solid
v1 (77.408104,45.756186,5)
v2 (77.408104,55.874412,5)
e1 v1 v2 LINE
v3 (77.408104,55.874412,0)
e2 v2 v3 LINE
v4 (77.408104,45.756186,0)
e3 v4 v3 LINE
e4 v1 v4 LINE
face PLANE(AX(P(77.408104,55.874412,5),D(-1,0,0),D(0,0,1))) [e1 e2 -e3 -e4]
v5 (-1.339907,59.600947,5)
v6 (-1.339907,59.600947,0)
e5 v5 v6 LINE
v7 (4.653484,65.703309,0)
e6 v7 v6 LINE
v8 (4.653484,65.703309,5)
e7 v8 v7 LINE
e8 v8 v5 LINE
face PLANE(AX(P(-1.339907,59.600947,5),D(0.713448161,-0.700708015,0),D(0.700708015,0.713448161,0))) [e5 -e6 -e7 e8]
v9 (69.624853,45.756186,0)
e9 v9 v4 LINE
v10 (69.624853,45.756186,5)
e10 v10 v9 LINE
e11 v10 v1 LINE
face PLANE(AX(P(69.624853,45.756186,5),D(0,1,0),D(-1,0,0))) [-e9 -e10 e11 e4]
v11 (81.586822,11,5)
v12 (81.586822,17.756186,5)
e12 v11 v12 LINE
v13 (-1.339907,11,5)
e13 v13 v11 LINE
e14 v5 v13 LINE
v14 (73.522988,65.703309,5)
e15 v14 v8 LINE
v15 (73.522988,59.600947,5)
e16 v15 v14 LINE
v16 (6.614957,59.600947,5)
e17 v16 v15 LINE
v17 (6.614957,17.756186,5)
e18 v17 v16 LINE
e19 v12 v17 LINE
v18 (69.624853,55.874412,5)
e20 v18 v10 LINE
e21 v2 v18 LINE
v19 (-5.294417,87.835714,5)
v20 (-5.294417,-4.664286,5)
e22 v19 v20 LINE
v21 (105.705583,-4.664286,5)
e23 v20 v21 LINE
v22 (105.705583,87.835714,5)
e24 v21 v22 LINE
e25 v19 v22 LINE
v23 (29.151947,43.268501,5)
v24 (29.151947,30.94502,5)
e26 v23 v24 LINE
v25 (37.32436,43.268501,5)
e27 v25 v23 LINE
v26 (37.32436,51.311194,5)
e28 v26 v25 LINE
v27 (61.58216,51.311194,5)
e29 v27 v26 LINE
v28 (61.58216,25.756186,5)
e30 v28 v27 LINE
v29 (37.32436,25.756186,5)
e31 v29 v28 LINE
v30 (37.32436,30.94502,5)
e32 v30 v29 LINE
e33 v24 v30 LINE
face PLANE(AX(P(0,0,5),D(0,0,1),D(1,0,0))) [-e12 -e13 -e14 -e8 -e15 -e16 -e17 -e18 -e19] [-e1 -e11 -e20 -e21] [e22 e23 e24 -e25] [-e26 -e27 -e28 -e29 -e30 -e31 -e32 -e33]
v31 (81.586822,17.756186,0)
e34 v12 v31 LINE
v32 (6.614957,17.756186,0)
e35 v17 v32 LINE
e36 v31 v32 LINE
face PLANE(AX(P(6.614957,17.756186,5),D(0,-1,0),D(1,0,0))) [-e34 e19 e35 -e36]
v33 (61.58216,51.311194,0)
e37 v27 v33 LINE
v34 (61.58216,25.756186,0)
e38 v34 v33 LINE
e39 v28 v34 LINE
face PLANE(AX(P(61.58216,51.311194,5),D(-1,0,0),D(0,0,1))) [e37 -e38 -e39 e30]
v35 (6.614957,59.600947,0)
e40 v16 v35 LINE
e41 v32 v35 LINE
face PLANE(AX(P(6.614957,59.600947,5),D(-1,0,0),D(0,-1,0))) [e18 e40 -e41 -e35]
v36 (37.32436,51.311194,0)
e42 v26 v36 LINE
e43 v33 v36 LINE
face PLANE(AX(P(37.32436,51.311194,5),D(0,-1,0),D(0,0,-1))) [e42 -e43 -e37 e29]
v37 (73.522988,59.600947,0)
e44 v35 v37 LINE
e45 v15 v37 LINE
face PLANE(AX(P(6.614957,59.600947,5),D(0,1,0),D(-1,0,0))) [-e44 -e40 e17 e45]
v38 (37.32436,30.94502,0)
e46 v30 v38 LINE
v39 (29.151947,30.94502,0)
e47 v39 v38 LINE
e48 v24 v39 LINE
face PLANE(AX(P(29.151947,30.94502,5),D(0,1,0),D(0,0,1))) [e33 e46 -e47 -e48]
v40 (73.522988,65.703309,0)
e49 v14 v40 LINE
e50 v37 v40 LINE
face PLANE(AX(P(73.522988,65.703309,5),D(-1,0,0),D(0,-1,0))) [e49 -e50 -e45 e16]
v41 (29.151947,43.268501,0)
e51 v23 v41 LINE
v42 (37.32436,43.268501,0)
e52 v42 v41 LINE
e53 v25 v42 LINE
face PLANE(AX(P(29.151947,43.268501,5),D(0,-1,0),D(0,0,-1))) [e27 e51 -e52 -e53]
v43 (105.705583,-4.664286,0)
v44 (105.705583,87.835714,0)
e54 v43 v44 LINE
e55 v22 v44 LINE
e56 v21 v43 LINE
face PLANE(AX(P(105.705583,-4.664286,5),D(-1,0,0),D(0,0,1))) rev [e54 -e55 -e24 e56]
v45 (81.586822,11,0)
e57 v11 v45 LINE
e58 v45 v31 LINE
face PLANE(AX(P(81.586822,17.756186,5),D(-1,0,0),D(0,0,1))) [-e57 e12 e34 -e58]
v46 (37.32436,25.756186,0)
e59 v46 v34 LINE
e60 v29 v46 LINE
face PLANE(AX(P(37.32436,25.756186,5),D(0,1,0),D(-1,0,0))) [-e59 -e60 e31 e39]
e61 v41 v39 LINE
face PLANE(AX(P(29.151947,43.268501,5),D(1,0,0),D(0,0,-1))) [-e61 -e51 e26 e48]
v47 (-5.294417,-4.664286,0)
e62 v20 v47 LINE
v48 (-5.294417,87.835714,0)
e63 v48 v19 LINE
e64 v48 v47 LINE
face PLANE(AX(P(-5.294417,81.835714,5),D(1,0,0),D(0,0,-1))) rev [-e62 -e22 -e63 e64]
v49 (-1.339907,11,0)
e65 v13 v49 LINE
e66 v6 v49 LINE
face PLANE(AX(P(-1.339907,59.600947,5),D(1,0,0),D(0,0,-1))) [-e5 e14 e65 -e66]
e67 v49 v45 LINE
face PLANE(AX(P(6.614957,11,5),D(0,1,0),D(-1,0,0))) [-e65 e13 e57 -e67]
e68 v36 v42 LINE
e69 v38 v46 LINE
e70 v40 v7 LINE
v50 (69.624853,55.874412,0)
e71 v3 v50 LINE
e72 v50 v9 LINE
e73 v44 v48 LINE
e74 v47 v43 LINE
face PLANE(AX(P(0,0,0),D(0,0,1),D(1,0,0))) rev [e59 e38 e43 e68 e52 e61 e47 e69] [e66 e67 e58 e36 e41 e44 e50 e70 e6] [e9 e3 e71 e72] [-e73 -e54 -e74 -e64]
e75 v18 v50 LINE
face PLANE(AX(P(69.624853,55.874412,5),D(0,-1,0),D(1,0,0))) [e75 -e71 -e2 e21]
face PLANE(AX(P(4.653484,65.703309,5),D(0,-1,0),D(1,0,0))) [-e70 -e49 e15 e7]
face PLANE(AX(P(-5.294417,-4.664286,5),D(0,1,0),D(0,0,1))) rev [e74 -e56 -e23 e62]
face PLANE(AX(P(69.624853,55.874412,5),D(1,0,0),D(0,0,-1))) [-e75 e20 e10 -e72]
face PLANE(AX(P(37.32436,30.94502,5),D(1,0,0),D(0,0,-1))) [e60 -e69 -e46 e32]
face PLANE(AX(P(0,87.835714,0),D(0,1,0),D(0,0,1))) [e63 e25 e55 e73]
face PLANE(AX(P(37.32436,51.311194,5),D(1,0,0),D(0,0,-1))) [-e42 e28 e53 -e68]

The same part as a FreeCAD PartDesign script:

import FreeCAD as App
import Part
import Sketcher


def add_polygon(sketch, points):
    """Adds a closed chain of lines whose ends are joined by coincident constraints."""
    first, n = sketch.GeometryCount, len(points)
    for a, b in zip(points, points[1:] + points[:1]):
        sketch.addGeometry(Part.LineSegment(App.Vector(*a, 0), App.Vector(*b, 0)), False)
    for i in range(n):
        sketch.addConstraint(Sketcher.Constraint("Coincident", first + i, 2, first + (i + 1) % n, 1))

doc = App.newDocument("Part")
body = doc.addObject("PartDesign::Body", "Body")

sketch1 = body.newObject("Sketcher::SketchObject", "Sketch")
sketch1.AttachmentSupport = (doc.getObject("XY_Plane"), [""])
sketch1.MapMode = "FlatFace"
add_polygon(sketch1, [(-5.294417, 81.835714), (-5.294417, -4.664286), (105.705583, -4.664286), (105.705583, 81.835714)])
add_polygon(sketch1, [(-1.339907, 11), (-1.339907, 59.600947), (4.653484, 65.703309), (73.522988, 65.703309), (73.522988, 59.600947), (6.614957, 59.600947), (6.614957, 17.756186), (81.586822, 17.756186), (81.586822, 11)])
add_polygon(sketch1, [(29.151947, 30.94502), (29.151947, 43.268501), (37.32436, 43.268501), (37.32436, 51.311194), (61.58216, 51.311194), (61.58216, 25.756186), (37.32436, 25.756186), (37.32436, 30.94502)])
add_polygon(sketch1, [(77.408104, 45.756186), (69.624853, 45.756186), (69.624853, 55.874412), (77.408104, 55.874412)])
sketch1.addConstraint(Sketcher.Constraint("Vertical", 0))
sketch1.addConstraint(Sketcher.Constraint("Horizontal", 1))
sketch1.addConstraint(Sketcher.Constraint("Vertical", 2))
sketch1.addConstraint(Sketcher.Constraint("Horizontal", 3))
sketch1.addConstraint(Sketcher.Constraint("Vertical", 4))
sketch1.addConstraint(Sketcher.Constraint("Horizontal", 6))
sketch1.addConstraint(Sketcher.Constraint("Vertical", 7))
sketch1.addConstraint(Sketcher.Constraint("Horizontal", 8))
sketch1.addConstraint(Sketcher.Constraint("Vertical", 9))
sketch1.addConstraint(Sketcher.Constraint("Horizontal", 10))
sketch1.addConstraint(Sketcher.Constraint("Vertical", 11))
sketch1.addConstraint(Sketcher.Constraint("Horizontal", 12))
sketch1.addConstraint(Sketcher.Constraint("Vertical", 13))
sketch1.addConstraint(Sketcher.Constraint("Horizontal", 14))
sketch1.addConstraint(Sketcher.Constraint("Vertical", 15))
sketch1.addConstraint(Sketcher.Constraint("Horizontal", 16))
sketch1.addConstraint(Sketcher.Constraint("Vertical", 17))
sketch1.addConstraint(Sketcher.Constraint("Horizontal", 18))
sketch1.addConstraint(Sketcher.Constraint("Vertical", 19))
sketch1.addConstraint(Sketcher.Constraint("Horizontal", 20))
sketch1.addConstraint(Sketcher.Constraint("Horizontal", 21))
sketch1.addConstraint(Sketcher.Constraint("Vertical", 22))
sketch1.addConstraint(Sketcher.Constraint("Horizontal", 23))
sketch1.addConstraint(Sketcher.Constraint("Vertical", 24))
sketch1.addConstraint(Sketcher.Constraint("Horizontal", 4, 2, 7, 2))
sketch1.addConstraint(Sketcher.Constraint("Vertical", 15, 2, 18, 2))
sketch1.addConstraint(Sketcher.Constraint("DistanceX", 1, 1, 1, 2, 111.0))
sketch1.addConstraint(Sketcher.Constraint("DistanceY", 0, 2, 0, 1, 86.5))
sketch1.addConstraint(Sketcher.Constraint("DistanceY", -1, 1, 11, 2, 11.0))
sketch1.addConstraint(Sketcher.Constraint("DistanceY", 10, 2, 17, 2, 8.0))
sketch1.addConstraint(Sketcher.Constraint("DistanceY", 17, 2, 21, 2, 20.0))
sketch1.addConstraint(Sketcher.Constraint("DistanceX", 16, 1, 16, 2, 24.2578))
sketch1.addConstraint(Sketcher.Constraint("DistanceX", 8, 2, 8, 1, 66.908031))
sketch1.addConstraint(Sketcher.Constraint("DistanceX", 12, 2, 12, 1, 82.926729))
sketch1.addConstraint(Sketcher.Constraint("DistanceX", 21, 2, 21, 1, 7.783251))
sketch1.addConstraint(Sketcher.Constraint("DistanceY", 7, 2, 7, 1, 6.102361))
sketch1.addConstraint(Sketcher.Constraint("DistanceY", 9, 2, 9, 1, 41.844762))
sketch1.addConstraint(Sketcher.Constraint("DistanceY", 13, 1, 13, 2, 12.323481))
sketch1.addConstraint(Sketcher.Constraint("DistanceY", 17, 2, 17, 1, 25.555008))
sketch1.addConstraint(Sketcher.Constraint("DistanceY", -1, 1, 13, 2, 43.268501))
sketch1.addConstraint(Sketcher.Constraint("DistanceX", 3, 2, 5, 2, 9.947901))
sketch1.addConstraint(Sketcher.Constraint("DistanceX", 6, 1, 6, 2, 68.869504))
sketch1.addConstraint(Sketcher.Constraint("DistanceX", 10, 1, 10, 2, 74.971865))
sketch1.addConstraint(Sketcher.Constraint("DistanceX", 14, 1, 14, 2, 8.172414))
sketch1.addConstraint(Sketcher.Constraint("DistanceY", 4, 1, 4, 2, 48.600947))
sketch1.addConstraint(Sketcher.Constraint("DistanceY", 22, 1, 22, 2, 10.118227))
sketch1.addConstraint(Sketcher.Constraint("DistanceX", -1, 1, 10, 2, 81.586822))
sketch1.addConstraint(Sketcher.Constraint("DistanceX", -1, 1, 14, 2, 37.32436))
sketch1.addConstraint(Sketcher.Constraint("DistanceY", 0, 2, 9, 2, 22.420471))
sketch1.addConstraint(Sketcher.Constraint("DistanceX", 21, 2, 10, 2, 11.961969))
pad1 = body.newObject("PartDesign::Pad", "Pad")
pad1.Profile = sketch1
pad1.Length = 5

sketch2 = body.newObject("Sketcher::SketchObject", "Sketch001")
sketch2.AttachmentSupport = (doc.getObject("XZ_Plane"), [""])
sketch2.MapMode = "FlatFace"
sketch2.AttachmentOffset = App.Placement(App.Vector(0, 0, -81.835714), App.Rotation())
add_polygon(sketch2, [(-5.294417, 0), (-5.294417, 5), (105.705583, 5), (105.705583, 0)])
sketch2.addConstraint(Sketcher.Constraint("Vertical", 0))
sketch2.addConstraint(Sketcher.Constraint("Horizontal", 1))
sketch2.addConstraint(Sketcher.Constraint("Vertical", 2))
sketch2.addConstraint(Sketcher.Constraint("Horizontal", 3))
sketch2.addConstraint(Sketcher.Constraint("PointOnObject", 2, 2, -1))
sketch2.addConstraint(Sketcher.Constraint("DistanceX", 1, 1, 1, 2, 111.0))
sketch2.addConstraint(Sketcher.Constraint("DistanceY", 0, 1, 0, 2, 5.0))
sketch2.addConstraint(Sketcher.Constraint("DistanceX", 0, 2, -1, 1, 5.294417))
pad2 = body.newObject("PartDesign::Pad", "Pad001")
pad2.Profile = sketch2
pad2.Length = 6
pad2.Reversed = True

doc.recompute()
